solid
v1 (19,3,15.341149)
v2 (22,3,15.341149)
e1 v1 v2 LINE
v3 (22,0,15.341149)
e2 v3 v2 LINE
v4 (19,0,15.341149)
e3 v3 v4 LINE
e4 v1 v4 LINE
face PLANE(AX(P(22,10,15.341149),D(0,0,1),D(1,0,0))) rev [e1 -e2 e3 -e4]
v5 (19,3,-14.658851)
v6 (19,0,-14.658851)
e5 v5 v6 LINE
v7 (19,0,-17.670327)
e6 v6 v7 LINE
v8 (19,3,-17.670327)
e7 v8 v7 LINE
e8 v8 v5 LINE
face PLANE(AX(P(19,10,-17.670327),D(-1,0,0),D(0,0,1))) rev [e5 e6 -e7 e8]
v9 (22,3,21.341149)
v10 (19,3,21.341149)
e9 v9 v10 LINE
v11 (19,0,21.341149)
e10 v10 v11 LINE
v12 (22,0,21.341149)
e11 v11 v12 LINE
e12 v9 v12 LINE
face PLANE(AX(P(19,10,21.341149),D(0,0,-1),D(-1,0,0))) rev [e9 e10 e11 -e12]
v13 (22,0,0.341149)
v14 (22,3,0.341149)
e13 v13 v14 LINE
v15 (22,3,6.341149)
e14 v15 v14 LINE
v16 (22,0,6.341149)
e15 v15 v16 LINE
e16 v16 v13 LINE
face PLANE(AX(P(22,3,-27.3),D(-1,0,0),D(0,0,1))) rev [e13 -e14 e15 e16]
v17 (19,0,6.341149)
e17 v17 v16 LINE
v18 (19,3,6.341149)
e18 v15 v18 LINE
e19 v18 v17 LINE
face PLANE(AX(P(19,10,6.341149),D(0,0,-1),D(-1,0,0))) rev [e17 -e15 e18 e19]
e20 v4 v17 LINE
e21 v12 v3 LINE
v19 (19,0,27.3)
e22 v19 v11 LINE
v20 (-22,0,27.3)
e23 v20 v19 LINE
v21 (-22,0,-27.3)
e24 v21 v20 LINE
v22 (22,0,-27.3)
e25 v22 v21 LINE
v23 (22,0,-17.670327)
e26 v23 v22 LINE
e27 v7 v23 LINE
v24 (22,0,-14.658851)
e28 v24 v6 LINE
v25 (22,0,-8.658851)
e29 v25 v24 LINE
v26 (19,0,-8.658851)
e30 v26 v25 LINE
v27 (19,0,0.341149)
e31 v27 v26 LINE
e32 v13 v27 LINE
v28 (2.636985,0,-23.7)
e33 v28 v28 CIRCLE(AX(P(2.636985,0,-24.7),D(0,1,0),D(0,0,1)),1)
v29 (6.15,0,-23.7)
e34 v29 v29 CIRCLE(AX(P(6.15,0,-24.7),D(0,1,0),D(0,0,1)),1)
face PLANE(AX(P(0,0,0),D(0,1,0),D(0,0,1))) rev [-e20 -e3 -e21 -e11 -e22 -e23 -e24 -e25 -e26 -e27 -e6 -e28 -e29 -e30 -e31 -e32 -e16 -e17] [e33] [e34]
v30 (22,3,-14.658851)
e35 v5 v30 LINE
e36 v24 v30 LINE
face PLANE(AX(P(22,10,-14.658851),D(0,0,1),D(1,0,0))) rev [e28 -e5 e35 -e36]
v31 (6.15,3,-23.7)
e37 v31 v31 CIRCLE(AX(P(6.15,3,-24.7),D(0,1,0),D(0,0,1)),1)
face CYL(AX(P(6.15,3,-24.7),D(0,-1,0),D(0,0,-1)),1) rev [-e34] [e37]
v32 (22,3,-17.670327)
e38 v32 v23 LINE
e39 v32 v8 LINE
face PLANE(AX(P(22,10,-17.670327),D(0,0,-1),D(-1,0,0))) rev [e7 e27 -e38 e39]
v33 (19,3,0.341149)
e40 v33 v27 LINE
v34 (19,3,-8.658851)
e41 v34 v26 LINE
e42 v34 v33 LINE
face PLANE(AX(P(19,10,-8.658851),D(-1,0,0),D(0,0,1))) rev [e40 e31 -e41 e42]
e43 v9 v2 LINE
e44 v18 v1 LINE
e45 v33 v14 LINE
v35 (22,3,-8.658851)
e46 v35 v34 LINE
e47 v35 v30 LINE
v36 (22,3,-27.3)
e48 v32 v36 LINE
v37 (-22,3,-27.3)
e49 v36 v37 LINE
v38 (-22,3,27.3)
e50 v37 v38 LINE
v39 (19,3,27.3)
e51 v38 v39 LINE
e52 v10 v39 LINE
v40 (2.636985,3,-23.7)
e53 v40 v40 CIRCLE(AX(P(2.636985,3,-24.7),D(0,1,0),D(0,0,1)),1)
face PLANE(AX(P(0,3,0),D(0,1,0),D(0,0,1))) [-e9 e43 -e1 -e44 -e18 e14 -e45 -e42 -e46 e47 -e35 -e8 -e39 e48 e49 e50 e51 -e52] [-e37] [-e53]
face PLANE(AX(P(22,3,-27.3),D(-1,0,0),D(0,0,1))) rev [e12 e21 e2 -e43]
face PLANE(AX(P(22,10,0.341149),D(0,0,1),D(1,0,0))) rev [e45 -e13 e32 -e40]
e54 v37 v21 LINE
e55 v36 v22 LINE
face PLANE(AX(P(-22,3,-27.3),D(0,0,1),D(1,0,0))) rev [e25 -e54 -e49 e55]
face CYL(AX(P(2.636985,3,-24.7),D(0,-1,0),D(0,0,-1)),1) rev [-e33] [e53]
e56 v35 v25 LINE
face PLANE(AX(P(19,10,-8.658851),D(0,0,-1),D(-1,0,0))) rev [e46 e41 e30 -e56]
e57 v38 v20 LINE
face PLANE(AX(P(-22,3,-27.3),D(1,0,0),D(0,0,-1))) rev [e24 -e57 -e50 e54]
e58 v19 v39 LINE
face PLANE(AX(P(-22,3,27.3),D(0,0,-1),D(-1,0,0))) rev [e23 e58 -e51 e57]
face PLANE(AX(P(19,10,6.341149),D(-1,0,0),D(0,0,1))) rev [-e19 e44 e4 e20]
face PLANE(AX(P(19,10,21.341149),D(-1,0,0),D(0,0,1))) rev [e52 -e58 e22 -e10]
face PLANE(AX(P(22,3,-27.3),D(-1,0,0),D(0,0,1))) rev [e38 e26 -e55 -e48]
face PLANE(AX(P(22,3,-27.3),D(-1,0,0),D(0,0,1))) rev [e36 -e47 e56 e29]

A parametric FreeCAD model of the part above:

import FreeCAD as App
import Part
import Sketcher
from FreeCAD import Vector


def add_polygon(sketch, points):
    """Adds a closed chain of lines whose ends are joined by coincident constraints."""
    first, n = sketch.GeometryCount, len(points)
    for a, b in zip(points, points[1:] + points[:1]):
        sketch.addGeometry(Part.LineSegment(App.Vector(*a, 0), App.Vector(*b, 0)), False)
    for i in range(n):
        sketch.addConstraint(Sketcher.Constraint("Coincident", first + i, 2, first + (i + 1) % n, 1))

doc = App.newDocument("Part")
body = doc.addObject("PartDesign::Body", "Body")

# Sketch on XZ plane
sketch1 = body.newObject("Sketcher::SketchObject", "Sketch")
sketch1.AttachmentSupport = (doc.getObject("XZ_Plane"), [""])
sketch1.MapMode = "FlatFace"
add_polygon(sketch1, [(-22, -27.3), (-22, 27.3), (22, 27.3), (22, -27.3)])  # lines 0-3
sketch1.addGeometry(Part.Circle(Vector(2.636985, -24.7, 0), Vector(0, 0, 1), 1), False)  # 4
sketch1.addGeometry(Part.Circle(Vector(6.15, -24.7, 0), Vector(0, 0, 1), 1), False)  # 5
sketch1.addConstraint(Sketcher.Constraint("Vertical", 0))
sketch1.addConstraint(Sketcher.Constraint("Horizontal", 1))
sketch1.addConstraint(Sketcher.Constraint("Vertical", 2))
sketch1.addConstraint(Sketcher.Constraint("Horizontal", 3))
sketch1.addConstraint(Sketcher.Constraint("Equal", 4, 5))
sketch1.addConstraint(Sketcher.Constraint("Symmetric", 0, 2, 2, 2, -1, 1))
sketch1.addConstraint(Sketcher.Constraint("Horizontal", 4, 3, 5, 3))
sketch1.addConstraint(Sketcher.Constraint("Diameter", 4, 2.0))
sketch1.addConstraint(Sketcher.Constraint("DistanceX", 1, 1, 1, 2, 44.0))
sketch1.addConstraint(Sketcher.Constraint("DistanceY", 0, 1, 0, 2, 54.6))
sketch1.addConstraint(Sketcher.Constraint("DistanceY", 4, 3, 0, 2, 52.0))
sketch1.addConstraint(Sketcher.Constraint("DistanceX", -1, 1, 5, 3, 6.15))
sketch1.addConstraint(Sketcher.Constraint("DistanceX", -1, 1, 4, 3, 2.636985))
pad1 = body.newObject("PartDesign::Pad", "Pad")
pad1.Profile = sketch1
pad1.Length = 3
pad1.Reversed = True

# Sketch on XZ plane
sketch2 = body.newObject("Sketcher::SketchObject", "Sketch001")
sketch2.AttachmentSupport = (doc.getObject("XZ_Plane"), [""])
sketch2.MapMode = "FlatFace"
add_polygon(sketch2, [(19, -14.658851), (19, -17.670327), (22, -17.670327), (22, -14.658851)])  # lines 0-3
add_polygon(sketch2, [(19, 0.341149), (19, -8.658851), (22, -8.658851), (22, 0.341149)])  # lines 4-7
add_polygon(sketch2, [(19, 15.341149), (19, 6.341149), (22, 6.341149), (22, 15.341149)])  # lines 8-11
add_polygon(sketch2, [(19, 27.3), (19, 21.341149), (22, 21.341149), (22, 27.3)])  # lines 12-15
sketch2.addConstraint(Sketcher.Constraint("Vertical", 0))
sketch2.addConstraint(Sketcher.Constraint("Horizontal", 1))
sketch2.addConstraint(Sketcher.Constraint("Vertical", 2))
sketch2.addConstraint(Sketcher.Constraint("Horizontal", 3))
sketch2.addConstraint(Sketcher.Constraint("Vertical", 4))
sketch2.addConstraint(Sketcher.Constraint("Horizontal", 5))
sketch2.addConstraint(Sketcher.Constraint("Vertical", 6))
sketch2.addConstraint(Sketcher.Constraint("Horizontal", 7))
sketch2.addConstraint(Sketcher.Constraint("Vertical", 8))
sketch2.addConstraint(Sketcher.Constraint("Horizontal", 9))
sketch2.addConstraint(Sketcher.Constraint("Vertical", 10))
sketch2.addConstraint(Sketcher.Constraint("Horizontal", 11))
sketch2.addConstraint(Sketcher.Constraint("Vertical", 12))
sketch2.addConstraint(Sketcher.Constraint("Horizontal", 13))
sketch2.addConstraint(Sketcher.Constraint("Vertical", 14))
sketch2.addConstraint(Sketcher.Constraint("Horizontal", 15))
sketch2.addConstraint(Sketcher.Constraint("Vertical", 3, 2, 4, 2))
sketch2.addConstraint(Sketcher.Constraint("Vertical", 2, 2, 5, 2))
sketch2.addConstraint(Sketcher.Constraint("Vertical", 7, 2, 8, 2))
sketch2.addConstraint(Sketcher.Constraint("Vertical", 6, 2, 9, 2))
sketch2.addConstraint(Sketcher.Constraint("Vertical", 11, 2, 12, 2))
sketch2.addConstraint(Sketcher.Constraint("Vertical", 10, 2, 13, 2))
sketch2.addConstraint(Sketcher.Constraint("Equal", 6, 8))
sketch2.addConstraint(Sketcher.Constraint("DistanceX", 1, 1, 1, 2, 3.0))
sketch2.addConstraint(Sketcher.Constraint("DistanceY", 4, 2, 4, 1, 9.0))
sketch2.addConstraint(Sketcher.Constraint("DistanceX", -1, 1, 0, 2, 19.0))
sketch2.addConstraint(Sketcher.Constraint("DistanceY", 3, 2, 4, 2, 6.0))
sketch2.addConstraint(Sketcher.Constraint("DistanceY", 7, 2, 8, 2, 6.0))
sketch2.addConstraint(Sketcher.Constraint("DistanceY", 11, 2, 12, 2, 6.0))
sketch2.addConstraint(Sketcher.Constraint("DistanceY", -1, 1, 14, 2, 27.3))
sketch2.addConstraint(Sketcher.Constraint("DistanceY", 12, 2, 12, 1, 5.958851))
sketch2.addConstraint(Sketcher.Constraint("DistanceY", 0, 2, 0, 1, 3.011476))
pocket1 = body.newObject("PartDesign::Pocket", "Pocket")
pocket1.Profile = sketch2
pocket1.Length = 10

doc.recompute()
